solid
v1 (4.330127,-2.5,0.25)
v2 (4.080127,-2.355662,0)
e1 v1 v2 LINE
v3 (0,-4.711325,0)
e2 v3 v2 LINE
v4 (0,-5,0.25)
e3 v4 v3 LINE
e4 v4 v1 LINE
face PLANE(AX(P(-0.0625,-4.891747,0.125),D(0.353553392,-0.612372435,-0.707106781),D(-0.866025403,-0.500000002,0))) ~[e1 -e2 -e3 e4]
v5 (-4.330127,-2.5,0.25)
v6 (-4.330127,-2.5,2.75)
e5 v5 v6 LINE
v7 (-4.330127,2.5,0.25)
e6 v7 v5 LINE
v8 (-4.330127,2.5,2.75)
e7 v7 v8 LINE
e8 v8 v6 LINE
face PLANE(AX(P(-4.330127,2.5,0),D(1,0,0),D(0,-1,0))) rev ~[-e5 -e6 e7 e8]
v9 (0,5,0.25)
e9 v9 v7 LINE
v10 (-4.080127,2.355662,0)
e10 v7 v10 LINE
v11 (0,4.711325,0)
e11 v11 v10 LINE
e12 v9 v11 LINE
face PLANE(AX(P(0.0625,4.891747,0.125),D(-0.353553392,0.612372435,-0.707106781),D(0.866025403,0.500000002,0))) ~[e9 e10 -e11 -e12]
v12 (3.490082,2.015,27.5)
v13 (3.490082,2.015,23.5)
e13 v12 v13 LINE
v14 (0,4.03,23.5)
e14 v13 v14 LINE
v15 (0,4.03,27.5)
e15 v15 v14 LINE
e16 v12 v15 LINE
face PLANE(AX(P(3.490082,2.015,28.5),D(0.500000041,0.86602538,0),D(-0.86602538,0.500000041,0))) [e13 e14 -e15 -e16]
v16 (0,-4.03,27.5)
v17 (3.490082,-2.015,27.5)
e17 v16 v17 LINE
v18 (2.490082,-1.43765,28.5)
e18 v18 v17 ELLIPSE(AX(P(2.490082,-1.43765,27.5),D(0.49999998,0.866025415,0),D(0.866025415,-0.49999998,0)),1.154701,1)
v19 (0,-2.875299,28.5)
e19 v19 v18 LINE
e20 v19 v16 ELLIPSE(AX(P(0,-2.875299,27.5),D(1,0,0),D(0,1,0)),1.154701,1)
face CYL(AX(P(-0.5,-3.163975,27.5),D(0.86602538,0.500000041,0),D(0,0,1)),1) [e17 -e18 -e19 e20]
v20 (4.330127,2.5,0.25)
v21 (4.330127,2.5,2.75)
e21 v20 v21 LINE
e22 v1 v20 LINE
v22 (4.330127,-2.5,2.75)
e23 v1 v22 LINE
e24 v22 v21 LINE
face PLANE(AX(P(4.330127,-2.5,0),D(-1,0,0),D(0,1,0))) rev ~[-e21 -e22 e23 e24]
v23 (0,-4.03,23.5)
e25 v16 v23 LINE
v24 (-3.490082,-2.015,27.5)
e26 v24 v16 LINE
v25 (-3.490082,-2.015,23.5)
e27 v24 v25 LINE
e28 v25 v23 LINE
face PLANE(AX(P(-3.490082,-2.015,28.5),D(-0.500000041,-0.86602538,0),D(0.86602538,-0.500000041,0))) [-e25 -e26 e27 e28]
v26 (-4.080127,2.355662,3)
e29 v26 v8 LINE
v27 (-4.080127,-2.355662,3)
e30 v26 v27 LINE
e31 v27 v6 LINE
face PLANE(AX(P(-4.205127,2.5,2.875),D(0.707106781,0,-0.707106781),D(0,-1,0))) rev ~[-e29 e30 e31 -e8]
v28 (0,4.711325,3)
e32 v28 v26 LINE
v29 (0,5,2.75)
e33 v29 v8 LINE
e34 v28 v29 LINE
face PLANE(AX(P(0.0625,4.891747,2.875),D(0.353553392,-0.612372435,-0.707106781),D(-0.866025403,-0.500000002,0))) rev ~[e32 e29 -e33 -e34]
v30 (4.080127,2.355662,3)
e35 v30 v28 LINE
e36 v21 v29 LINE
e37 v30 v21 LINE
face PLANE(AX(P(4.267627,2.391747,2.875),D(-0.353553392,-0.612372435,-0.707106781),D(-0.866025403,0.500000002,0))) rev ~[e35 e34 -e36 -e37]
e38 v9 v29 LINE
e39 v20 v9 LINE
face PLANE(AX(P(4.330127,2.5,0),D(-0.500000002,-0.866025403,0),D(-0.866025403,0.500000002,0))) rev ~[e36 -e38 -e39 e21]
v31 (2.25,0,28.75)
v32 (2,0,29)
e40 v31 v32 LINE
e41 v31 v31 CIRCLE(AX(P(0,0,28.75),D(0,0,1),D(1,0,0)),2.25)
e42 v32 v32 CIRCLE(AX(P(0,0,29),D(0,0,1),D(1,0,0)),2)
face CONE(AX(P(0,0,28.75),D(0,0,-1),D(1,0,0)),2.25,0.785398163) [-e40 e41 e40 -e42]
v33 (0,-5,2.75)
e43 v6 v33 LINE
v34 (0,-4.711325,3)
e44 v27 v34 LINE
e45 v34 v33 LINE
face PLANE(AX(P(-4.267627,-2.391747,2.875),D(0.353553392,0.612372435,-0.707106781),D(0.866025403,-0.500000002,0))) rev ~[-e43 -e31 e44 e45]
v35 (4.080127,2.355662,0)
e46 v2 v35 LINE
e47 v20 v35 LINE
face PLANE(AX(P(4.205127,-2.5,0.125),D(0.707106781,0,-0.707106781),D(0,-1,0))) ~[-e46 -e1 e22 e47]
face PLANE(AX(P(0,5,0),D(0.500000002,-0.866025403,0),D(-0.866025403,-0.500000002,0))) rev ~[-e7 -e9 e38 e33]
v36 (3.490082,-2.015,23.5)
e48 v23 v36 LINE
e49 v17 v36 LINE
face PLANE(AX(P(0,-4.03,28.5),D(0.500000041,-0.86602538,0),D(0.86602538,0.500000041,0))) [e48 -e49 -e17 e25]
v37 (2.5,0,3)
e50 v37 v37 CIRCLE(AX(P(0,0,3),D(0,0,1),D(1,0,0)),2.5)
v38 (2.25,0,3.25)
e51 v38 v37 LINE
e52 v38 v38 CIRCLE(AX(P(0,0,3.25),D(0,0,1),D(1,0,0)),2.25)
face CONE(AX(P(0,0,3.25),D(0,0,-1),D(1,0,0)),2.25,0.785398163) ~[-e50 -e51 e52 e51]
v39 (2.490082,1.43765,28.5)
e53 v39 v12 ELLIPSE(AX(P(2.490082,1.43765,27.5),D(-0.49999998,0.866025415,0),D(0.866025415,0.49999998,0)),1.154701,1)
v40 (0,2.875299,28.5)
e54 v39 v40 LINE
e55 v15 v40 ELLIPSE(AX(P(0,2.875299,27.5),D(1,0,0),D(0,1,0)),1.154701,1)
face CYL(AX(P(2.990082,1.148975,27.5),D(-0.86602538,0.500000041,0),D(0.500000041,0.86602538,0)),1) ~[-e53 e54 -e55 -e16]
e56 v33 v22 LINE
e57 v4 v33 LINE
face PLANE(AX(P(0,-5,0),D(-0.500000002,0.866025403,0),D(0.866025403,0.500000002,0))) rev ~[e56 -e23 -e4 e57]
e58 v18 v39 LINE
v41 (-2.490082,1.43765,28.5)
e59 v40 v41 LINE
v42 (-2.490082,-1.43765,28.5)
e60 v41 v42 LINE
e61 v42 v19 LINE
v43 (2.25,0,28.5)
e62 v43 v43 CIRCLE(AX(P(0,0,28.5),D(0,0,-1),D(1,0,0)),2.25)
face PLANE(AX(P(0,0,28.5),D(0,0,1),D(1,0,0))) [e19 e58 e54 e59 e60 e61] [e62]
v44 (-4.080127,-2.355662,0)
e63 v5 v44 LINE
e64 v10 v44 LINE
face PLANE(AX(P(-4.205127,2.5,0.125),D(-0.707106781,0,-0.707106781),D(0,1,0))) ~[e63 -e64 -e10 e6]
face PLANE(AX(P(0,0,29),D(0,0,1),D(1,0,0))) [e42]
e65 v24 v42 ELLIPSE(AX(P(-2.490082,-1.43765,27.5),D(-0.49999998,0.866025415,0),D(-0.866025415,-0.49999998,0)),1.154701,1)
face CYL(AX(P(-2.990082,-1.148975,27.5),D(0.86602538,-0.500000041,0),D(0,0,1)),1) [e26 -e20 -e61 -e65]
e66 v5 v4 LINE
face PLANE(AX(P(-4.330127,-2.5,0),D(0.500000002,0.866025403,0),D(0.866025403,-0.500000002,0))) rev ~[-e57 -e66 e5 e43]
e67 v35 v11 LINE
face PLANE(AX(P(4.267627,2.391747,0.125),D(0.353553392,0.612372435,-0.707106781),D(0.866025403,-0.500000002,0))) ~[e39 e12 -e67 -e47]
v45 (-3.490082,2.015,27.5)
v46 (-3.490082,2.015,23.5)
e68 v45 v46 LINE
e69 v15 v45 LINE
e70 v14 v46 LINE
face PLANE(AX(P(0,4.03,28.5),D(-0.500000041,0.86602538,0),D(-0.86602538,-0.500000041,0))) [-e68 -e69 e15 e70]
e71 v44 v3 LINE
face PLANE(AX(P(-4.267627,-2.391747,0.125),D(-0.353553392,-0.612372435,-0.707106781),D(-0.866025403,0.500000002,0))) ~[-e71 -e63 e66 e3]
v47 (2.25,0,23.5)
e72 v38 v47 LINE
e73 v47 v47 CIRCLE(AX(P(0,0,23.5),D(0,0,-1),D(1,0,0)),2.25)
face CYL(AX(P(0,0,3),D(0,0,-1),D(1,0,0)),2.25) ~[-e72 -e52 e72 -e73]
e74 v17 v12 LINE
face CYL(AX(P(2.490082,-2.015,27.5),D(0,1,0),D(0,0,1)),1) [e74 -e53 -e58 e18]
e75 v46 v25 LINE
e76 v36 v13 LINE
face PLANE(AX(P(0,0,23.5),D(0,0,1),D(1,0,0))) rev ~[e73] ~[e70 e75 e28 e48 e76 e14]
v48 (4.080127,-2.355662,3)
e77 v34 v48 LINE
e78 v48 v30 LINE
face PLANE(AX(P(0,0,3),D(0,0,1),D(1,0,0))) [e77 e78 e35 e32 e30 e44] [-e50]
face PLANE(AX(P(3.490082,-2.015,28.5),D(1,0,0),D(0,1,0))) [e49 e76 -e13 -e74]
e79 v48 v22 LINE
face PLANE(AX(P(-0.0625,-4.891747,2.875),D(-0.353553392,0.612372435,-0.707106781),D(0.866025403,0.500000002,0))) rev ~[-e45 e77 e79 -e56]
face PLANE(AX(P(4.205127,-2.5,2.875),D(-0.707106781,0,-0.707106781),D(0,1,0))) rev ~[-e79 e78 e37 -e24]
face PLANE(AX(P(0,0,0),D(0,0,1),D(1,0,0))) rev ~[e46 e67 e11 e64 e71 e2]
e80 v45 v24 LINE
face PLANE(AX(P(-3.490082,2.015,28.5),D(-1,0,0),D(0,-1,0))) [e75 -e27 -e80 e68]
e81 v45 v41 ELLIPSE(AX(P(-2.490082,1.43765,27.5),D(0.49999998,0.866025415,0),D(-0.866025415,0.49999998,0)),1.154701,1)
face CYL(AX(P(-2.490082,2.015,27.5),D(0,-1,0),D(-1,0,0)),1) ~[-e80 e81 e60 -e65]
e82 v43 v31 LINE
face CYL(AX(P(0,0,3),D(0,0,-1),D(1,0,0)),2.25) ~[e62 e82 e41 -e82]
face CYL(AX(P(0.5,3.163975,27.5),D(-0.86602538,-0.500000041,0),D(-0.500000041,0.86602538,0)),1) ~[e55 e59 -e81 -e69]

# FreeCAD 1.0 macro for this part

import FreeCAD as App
import Part
import Sketcher
Q = App.Units.Quantity


def edges_at(feature, points):
    """Names of the edges that pass closest to the given points."""
    edges = feature.Shape.Edges
    near = lambda p: min(range(len(edges)), key=lambda i: edges[i].distToShape(Part.Vertex(*p))[0])
    return sorted({f"Edge{near(p) + 1}" for p in points})


def add_polygon(sketch, points):
    """Adds a closed chain of lines whose ends are joined by coincident constraints."""
    first, n = sketch.GeometryCount, len(points)
    for a, b in zip(points, points[1:] + points[:1]):
        sketch.addGeometry(Part.LineSegment(App.Vector(*a, 0), App.Vector(*b, 0)), False)
    for i in range(n):
        sketch.addConstraint(Sketcher.Constraint("Coincident", first + i, 2, first + (i + 1) % n, 1))

doc = App.newDocument("Part")
body = doc.addObject("PartDesign::Body", "Body")

sketch1 = doc.addObject("Sketcher::SketchObject", "Sketch")
body.addObject(sketch1)
sketch1.AttachmentSupport = (doc.XY_Plane, [""])
sketch1.MapMode = "FlatFace"
add_polygon(sketch1, [(0, 5), (-4.3, 2.5), (-4.3, -2.5), (0, -5), (4.3, -2.5), (4.3, 2.5)])
sketch1.addConstraint([
    Sketcher.Constraint("Vertical", 1),
    Sketcher.Constraint("Vertical", 4),
    Sketcher.Constraint("Symmetric", 0, 2, 3, 2, -1, 1),
    Sketcher.Constraint("Symmetric", 2, 2, 5, 2, -1, 1),
    Sketcher.Constraint("PointOnObject", 2, 2, -2),
    Sketcher.Constraint("Parallel", 2, 5),
    Sketcher.Constraint("Horizontal", 1, 2, 3, 2),
    Sketcher.Constraint("DistanceY", 1, 2, 1, 1, 5.0),
    Sketcher.Constraint("Angle", 0, Q("-150 deg")),
    Sketcher.Constraint("Distance", 0, 5.0),
])
pad1 = doc.addObject("PartDesign::Pad", "Pad")
body.addObject(pad1)
pad1.Profile = sketch1
pad1.Length = 3

sketch2 = doc.addObject("Sketcher::SketchObject", "Sketch001")
body.addObject(sketch2)
sketch2.AttachmentSupport = (doc.XY_Plane, [""])
sketch2.MapMode = "FlatFace"
sketch2.AttachmentOffset = App.Placement(App.Vector(0, 0, 3), App.Rotation())
sketch2.addGeometry(Part.Circle(App.Vector(0, 0, 0), App.Vector(0, 0, 1), 2.2), False)
sketch2.addConstraint([
    Sketcher.Constraint("Coincident", 0, 3, -1, 1),
    Sketcher.Constraint("Diameter", 0, 4.5),
])
pad2 = doc.addObject("PartDesign::Pad", "Pad001")
body.addObject(pad2)
pad2.Profile = sketch2
pad2.Length = 26

sketch3 = doc.addObject("Sketcher::SketchObject", "Sketch002")
body.addObject(sketch3)
sketch3.AttachmentSupport = (doc.XY_Plane, [""])
sketch3.MapMode = "FlatFace"
sketch3.AttachmentOffset = App.Placement(App.Vector(0, 0, 28.5), App.Rotation())
add_polygon(sketch3, [(0, 4), (-3.5, 2), (-3.5, -2), (0, -4), (3.5, -2), (3.5, 2)])
sketch3.addConstraint([
    Sketcher.Constraint("Vertical", 1),
    Sketcher.Constraint("Vertical", 4),
    Sketcher.Constraint("Symmetric", 0, 2, 3, 2, -1, 1),
    Sketcher.Constraint("Symmetric", 2, 2, 5, 2, -1, 1),
    Sketcher.Constraint("PointOnObject", 2, 2, -2),
    Sketcher.Constraint("Parallel", 2, 5),
    Sketcher.Constraint("Horizontal", 1, 2, 3, 2),
    Sketcher.Constraint("Angle", 0, Q("-149.999997 deg")),
    Sketcher.Constraint("DistanceY", 1, 2, 1, 1, 4.03),
    Sketcher.Constraint("Distance", 0, 4.03),
])
pad3 = doc.addObject("PartDesign::Pad", "Pad002")
body.addObject(pad3)
pad3.Profile = sketch3
pad3.Length = 5
pad3.Reversed = True
doc.recompute()

fillet = doc.addObject("PartDesign::Fillet", "Fillet")
body.addObject(fillet)
fillet.Base = (pad3, edges_at(pad3, [
    (1.745, -3.022, 28.5),
    (3.49, 0, 28.5),
    (1.745, 3.022, 28.5),
    (-1.745, 3.022, 28.5),
    (-3.49, 0, 28.5),
    (-1.745, -3.022, 28.5),
]))
fillet.Radius = 1
doc.recompute()

chamfer = doc.addObject("PartDesign::Chamfer", "Chamfer")
body.addObject(chamfer)
chamfer.Base = (fillet, edges_at(fillet, [
    (-2.165, 3.75, 0),
    (-4.33, 0, 0),
    (-2.165, -3.75, 0),
    (2.165, -3.75, 0),
    (4.33, 0, 0),
    (2.165, 3.75, 0),
    (-2.165, 3.75, 3),
    (2.165, 3.75, 3),
    (-4.33, 0, 3),
    (4.33, 0, 3),
    (-2.165, -3.75, 3),
    (2.165, -3.75, 3),
    (-2.25, 0, 3),
    (-2.25, 0, 29),
]))
chamfer.Size = 0.25

doc.recompute()
